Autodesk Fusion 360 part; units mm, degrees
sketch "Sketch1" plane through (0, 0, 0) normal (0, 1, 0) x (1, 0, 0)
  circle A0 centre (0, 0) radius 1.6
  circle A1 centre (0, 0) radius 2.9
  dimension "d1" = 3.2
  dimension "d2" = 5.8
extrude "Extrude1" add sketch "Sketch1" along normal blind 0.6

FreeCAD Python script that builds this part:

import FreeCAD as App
import Part
import Sketcher
from FreeCAD import Vector

doc = App.newDocument("Part")
body = doc.addObject("PartDesign::Body", "Body")

# Sketch on XZ plane
sketch1 = doc.addObject("Sketcher::SketchObject", "Sketch")
body.addObject(sketch1)
sketch1.AttachmentSupport = (doc.XZ_Plane, [""])
sketch1.MapMode = "FlatFace"
sketch1.addGeometry([
    Part.Circle(Vector(0, 0, 0), Vector(0, 0, 1), 2.9),
    Part.Circle(Vector(0, 0, 0), Vector(0, 0, 1), 1.6),
], False)
sketch1.addConstraint([
    Sketcher.Constraint("Coincident", 0, 3, -1, 1),
    Sketcher.Constraint("Coincident", 1, 3, -1, 1),
    Sketcher.Constraint("Diameter", 0, 5.8),
    Sketcher.Constraint("Diameter", 1, 3.2),
])
pad1 = doc.addObject("PartDesign::Pad", "Pad")
body.addObject(pad1)
pad1.Profile = sketch1
pad1.Length = 0.6
pad1.Reversed = True

doc.recompute()
